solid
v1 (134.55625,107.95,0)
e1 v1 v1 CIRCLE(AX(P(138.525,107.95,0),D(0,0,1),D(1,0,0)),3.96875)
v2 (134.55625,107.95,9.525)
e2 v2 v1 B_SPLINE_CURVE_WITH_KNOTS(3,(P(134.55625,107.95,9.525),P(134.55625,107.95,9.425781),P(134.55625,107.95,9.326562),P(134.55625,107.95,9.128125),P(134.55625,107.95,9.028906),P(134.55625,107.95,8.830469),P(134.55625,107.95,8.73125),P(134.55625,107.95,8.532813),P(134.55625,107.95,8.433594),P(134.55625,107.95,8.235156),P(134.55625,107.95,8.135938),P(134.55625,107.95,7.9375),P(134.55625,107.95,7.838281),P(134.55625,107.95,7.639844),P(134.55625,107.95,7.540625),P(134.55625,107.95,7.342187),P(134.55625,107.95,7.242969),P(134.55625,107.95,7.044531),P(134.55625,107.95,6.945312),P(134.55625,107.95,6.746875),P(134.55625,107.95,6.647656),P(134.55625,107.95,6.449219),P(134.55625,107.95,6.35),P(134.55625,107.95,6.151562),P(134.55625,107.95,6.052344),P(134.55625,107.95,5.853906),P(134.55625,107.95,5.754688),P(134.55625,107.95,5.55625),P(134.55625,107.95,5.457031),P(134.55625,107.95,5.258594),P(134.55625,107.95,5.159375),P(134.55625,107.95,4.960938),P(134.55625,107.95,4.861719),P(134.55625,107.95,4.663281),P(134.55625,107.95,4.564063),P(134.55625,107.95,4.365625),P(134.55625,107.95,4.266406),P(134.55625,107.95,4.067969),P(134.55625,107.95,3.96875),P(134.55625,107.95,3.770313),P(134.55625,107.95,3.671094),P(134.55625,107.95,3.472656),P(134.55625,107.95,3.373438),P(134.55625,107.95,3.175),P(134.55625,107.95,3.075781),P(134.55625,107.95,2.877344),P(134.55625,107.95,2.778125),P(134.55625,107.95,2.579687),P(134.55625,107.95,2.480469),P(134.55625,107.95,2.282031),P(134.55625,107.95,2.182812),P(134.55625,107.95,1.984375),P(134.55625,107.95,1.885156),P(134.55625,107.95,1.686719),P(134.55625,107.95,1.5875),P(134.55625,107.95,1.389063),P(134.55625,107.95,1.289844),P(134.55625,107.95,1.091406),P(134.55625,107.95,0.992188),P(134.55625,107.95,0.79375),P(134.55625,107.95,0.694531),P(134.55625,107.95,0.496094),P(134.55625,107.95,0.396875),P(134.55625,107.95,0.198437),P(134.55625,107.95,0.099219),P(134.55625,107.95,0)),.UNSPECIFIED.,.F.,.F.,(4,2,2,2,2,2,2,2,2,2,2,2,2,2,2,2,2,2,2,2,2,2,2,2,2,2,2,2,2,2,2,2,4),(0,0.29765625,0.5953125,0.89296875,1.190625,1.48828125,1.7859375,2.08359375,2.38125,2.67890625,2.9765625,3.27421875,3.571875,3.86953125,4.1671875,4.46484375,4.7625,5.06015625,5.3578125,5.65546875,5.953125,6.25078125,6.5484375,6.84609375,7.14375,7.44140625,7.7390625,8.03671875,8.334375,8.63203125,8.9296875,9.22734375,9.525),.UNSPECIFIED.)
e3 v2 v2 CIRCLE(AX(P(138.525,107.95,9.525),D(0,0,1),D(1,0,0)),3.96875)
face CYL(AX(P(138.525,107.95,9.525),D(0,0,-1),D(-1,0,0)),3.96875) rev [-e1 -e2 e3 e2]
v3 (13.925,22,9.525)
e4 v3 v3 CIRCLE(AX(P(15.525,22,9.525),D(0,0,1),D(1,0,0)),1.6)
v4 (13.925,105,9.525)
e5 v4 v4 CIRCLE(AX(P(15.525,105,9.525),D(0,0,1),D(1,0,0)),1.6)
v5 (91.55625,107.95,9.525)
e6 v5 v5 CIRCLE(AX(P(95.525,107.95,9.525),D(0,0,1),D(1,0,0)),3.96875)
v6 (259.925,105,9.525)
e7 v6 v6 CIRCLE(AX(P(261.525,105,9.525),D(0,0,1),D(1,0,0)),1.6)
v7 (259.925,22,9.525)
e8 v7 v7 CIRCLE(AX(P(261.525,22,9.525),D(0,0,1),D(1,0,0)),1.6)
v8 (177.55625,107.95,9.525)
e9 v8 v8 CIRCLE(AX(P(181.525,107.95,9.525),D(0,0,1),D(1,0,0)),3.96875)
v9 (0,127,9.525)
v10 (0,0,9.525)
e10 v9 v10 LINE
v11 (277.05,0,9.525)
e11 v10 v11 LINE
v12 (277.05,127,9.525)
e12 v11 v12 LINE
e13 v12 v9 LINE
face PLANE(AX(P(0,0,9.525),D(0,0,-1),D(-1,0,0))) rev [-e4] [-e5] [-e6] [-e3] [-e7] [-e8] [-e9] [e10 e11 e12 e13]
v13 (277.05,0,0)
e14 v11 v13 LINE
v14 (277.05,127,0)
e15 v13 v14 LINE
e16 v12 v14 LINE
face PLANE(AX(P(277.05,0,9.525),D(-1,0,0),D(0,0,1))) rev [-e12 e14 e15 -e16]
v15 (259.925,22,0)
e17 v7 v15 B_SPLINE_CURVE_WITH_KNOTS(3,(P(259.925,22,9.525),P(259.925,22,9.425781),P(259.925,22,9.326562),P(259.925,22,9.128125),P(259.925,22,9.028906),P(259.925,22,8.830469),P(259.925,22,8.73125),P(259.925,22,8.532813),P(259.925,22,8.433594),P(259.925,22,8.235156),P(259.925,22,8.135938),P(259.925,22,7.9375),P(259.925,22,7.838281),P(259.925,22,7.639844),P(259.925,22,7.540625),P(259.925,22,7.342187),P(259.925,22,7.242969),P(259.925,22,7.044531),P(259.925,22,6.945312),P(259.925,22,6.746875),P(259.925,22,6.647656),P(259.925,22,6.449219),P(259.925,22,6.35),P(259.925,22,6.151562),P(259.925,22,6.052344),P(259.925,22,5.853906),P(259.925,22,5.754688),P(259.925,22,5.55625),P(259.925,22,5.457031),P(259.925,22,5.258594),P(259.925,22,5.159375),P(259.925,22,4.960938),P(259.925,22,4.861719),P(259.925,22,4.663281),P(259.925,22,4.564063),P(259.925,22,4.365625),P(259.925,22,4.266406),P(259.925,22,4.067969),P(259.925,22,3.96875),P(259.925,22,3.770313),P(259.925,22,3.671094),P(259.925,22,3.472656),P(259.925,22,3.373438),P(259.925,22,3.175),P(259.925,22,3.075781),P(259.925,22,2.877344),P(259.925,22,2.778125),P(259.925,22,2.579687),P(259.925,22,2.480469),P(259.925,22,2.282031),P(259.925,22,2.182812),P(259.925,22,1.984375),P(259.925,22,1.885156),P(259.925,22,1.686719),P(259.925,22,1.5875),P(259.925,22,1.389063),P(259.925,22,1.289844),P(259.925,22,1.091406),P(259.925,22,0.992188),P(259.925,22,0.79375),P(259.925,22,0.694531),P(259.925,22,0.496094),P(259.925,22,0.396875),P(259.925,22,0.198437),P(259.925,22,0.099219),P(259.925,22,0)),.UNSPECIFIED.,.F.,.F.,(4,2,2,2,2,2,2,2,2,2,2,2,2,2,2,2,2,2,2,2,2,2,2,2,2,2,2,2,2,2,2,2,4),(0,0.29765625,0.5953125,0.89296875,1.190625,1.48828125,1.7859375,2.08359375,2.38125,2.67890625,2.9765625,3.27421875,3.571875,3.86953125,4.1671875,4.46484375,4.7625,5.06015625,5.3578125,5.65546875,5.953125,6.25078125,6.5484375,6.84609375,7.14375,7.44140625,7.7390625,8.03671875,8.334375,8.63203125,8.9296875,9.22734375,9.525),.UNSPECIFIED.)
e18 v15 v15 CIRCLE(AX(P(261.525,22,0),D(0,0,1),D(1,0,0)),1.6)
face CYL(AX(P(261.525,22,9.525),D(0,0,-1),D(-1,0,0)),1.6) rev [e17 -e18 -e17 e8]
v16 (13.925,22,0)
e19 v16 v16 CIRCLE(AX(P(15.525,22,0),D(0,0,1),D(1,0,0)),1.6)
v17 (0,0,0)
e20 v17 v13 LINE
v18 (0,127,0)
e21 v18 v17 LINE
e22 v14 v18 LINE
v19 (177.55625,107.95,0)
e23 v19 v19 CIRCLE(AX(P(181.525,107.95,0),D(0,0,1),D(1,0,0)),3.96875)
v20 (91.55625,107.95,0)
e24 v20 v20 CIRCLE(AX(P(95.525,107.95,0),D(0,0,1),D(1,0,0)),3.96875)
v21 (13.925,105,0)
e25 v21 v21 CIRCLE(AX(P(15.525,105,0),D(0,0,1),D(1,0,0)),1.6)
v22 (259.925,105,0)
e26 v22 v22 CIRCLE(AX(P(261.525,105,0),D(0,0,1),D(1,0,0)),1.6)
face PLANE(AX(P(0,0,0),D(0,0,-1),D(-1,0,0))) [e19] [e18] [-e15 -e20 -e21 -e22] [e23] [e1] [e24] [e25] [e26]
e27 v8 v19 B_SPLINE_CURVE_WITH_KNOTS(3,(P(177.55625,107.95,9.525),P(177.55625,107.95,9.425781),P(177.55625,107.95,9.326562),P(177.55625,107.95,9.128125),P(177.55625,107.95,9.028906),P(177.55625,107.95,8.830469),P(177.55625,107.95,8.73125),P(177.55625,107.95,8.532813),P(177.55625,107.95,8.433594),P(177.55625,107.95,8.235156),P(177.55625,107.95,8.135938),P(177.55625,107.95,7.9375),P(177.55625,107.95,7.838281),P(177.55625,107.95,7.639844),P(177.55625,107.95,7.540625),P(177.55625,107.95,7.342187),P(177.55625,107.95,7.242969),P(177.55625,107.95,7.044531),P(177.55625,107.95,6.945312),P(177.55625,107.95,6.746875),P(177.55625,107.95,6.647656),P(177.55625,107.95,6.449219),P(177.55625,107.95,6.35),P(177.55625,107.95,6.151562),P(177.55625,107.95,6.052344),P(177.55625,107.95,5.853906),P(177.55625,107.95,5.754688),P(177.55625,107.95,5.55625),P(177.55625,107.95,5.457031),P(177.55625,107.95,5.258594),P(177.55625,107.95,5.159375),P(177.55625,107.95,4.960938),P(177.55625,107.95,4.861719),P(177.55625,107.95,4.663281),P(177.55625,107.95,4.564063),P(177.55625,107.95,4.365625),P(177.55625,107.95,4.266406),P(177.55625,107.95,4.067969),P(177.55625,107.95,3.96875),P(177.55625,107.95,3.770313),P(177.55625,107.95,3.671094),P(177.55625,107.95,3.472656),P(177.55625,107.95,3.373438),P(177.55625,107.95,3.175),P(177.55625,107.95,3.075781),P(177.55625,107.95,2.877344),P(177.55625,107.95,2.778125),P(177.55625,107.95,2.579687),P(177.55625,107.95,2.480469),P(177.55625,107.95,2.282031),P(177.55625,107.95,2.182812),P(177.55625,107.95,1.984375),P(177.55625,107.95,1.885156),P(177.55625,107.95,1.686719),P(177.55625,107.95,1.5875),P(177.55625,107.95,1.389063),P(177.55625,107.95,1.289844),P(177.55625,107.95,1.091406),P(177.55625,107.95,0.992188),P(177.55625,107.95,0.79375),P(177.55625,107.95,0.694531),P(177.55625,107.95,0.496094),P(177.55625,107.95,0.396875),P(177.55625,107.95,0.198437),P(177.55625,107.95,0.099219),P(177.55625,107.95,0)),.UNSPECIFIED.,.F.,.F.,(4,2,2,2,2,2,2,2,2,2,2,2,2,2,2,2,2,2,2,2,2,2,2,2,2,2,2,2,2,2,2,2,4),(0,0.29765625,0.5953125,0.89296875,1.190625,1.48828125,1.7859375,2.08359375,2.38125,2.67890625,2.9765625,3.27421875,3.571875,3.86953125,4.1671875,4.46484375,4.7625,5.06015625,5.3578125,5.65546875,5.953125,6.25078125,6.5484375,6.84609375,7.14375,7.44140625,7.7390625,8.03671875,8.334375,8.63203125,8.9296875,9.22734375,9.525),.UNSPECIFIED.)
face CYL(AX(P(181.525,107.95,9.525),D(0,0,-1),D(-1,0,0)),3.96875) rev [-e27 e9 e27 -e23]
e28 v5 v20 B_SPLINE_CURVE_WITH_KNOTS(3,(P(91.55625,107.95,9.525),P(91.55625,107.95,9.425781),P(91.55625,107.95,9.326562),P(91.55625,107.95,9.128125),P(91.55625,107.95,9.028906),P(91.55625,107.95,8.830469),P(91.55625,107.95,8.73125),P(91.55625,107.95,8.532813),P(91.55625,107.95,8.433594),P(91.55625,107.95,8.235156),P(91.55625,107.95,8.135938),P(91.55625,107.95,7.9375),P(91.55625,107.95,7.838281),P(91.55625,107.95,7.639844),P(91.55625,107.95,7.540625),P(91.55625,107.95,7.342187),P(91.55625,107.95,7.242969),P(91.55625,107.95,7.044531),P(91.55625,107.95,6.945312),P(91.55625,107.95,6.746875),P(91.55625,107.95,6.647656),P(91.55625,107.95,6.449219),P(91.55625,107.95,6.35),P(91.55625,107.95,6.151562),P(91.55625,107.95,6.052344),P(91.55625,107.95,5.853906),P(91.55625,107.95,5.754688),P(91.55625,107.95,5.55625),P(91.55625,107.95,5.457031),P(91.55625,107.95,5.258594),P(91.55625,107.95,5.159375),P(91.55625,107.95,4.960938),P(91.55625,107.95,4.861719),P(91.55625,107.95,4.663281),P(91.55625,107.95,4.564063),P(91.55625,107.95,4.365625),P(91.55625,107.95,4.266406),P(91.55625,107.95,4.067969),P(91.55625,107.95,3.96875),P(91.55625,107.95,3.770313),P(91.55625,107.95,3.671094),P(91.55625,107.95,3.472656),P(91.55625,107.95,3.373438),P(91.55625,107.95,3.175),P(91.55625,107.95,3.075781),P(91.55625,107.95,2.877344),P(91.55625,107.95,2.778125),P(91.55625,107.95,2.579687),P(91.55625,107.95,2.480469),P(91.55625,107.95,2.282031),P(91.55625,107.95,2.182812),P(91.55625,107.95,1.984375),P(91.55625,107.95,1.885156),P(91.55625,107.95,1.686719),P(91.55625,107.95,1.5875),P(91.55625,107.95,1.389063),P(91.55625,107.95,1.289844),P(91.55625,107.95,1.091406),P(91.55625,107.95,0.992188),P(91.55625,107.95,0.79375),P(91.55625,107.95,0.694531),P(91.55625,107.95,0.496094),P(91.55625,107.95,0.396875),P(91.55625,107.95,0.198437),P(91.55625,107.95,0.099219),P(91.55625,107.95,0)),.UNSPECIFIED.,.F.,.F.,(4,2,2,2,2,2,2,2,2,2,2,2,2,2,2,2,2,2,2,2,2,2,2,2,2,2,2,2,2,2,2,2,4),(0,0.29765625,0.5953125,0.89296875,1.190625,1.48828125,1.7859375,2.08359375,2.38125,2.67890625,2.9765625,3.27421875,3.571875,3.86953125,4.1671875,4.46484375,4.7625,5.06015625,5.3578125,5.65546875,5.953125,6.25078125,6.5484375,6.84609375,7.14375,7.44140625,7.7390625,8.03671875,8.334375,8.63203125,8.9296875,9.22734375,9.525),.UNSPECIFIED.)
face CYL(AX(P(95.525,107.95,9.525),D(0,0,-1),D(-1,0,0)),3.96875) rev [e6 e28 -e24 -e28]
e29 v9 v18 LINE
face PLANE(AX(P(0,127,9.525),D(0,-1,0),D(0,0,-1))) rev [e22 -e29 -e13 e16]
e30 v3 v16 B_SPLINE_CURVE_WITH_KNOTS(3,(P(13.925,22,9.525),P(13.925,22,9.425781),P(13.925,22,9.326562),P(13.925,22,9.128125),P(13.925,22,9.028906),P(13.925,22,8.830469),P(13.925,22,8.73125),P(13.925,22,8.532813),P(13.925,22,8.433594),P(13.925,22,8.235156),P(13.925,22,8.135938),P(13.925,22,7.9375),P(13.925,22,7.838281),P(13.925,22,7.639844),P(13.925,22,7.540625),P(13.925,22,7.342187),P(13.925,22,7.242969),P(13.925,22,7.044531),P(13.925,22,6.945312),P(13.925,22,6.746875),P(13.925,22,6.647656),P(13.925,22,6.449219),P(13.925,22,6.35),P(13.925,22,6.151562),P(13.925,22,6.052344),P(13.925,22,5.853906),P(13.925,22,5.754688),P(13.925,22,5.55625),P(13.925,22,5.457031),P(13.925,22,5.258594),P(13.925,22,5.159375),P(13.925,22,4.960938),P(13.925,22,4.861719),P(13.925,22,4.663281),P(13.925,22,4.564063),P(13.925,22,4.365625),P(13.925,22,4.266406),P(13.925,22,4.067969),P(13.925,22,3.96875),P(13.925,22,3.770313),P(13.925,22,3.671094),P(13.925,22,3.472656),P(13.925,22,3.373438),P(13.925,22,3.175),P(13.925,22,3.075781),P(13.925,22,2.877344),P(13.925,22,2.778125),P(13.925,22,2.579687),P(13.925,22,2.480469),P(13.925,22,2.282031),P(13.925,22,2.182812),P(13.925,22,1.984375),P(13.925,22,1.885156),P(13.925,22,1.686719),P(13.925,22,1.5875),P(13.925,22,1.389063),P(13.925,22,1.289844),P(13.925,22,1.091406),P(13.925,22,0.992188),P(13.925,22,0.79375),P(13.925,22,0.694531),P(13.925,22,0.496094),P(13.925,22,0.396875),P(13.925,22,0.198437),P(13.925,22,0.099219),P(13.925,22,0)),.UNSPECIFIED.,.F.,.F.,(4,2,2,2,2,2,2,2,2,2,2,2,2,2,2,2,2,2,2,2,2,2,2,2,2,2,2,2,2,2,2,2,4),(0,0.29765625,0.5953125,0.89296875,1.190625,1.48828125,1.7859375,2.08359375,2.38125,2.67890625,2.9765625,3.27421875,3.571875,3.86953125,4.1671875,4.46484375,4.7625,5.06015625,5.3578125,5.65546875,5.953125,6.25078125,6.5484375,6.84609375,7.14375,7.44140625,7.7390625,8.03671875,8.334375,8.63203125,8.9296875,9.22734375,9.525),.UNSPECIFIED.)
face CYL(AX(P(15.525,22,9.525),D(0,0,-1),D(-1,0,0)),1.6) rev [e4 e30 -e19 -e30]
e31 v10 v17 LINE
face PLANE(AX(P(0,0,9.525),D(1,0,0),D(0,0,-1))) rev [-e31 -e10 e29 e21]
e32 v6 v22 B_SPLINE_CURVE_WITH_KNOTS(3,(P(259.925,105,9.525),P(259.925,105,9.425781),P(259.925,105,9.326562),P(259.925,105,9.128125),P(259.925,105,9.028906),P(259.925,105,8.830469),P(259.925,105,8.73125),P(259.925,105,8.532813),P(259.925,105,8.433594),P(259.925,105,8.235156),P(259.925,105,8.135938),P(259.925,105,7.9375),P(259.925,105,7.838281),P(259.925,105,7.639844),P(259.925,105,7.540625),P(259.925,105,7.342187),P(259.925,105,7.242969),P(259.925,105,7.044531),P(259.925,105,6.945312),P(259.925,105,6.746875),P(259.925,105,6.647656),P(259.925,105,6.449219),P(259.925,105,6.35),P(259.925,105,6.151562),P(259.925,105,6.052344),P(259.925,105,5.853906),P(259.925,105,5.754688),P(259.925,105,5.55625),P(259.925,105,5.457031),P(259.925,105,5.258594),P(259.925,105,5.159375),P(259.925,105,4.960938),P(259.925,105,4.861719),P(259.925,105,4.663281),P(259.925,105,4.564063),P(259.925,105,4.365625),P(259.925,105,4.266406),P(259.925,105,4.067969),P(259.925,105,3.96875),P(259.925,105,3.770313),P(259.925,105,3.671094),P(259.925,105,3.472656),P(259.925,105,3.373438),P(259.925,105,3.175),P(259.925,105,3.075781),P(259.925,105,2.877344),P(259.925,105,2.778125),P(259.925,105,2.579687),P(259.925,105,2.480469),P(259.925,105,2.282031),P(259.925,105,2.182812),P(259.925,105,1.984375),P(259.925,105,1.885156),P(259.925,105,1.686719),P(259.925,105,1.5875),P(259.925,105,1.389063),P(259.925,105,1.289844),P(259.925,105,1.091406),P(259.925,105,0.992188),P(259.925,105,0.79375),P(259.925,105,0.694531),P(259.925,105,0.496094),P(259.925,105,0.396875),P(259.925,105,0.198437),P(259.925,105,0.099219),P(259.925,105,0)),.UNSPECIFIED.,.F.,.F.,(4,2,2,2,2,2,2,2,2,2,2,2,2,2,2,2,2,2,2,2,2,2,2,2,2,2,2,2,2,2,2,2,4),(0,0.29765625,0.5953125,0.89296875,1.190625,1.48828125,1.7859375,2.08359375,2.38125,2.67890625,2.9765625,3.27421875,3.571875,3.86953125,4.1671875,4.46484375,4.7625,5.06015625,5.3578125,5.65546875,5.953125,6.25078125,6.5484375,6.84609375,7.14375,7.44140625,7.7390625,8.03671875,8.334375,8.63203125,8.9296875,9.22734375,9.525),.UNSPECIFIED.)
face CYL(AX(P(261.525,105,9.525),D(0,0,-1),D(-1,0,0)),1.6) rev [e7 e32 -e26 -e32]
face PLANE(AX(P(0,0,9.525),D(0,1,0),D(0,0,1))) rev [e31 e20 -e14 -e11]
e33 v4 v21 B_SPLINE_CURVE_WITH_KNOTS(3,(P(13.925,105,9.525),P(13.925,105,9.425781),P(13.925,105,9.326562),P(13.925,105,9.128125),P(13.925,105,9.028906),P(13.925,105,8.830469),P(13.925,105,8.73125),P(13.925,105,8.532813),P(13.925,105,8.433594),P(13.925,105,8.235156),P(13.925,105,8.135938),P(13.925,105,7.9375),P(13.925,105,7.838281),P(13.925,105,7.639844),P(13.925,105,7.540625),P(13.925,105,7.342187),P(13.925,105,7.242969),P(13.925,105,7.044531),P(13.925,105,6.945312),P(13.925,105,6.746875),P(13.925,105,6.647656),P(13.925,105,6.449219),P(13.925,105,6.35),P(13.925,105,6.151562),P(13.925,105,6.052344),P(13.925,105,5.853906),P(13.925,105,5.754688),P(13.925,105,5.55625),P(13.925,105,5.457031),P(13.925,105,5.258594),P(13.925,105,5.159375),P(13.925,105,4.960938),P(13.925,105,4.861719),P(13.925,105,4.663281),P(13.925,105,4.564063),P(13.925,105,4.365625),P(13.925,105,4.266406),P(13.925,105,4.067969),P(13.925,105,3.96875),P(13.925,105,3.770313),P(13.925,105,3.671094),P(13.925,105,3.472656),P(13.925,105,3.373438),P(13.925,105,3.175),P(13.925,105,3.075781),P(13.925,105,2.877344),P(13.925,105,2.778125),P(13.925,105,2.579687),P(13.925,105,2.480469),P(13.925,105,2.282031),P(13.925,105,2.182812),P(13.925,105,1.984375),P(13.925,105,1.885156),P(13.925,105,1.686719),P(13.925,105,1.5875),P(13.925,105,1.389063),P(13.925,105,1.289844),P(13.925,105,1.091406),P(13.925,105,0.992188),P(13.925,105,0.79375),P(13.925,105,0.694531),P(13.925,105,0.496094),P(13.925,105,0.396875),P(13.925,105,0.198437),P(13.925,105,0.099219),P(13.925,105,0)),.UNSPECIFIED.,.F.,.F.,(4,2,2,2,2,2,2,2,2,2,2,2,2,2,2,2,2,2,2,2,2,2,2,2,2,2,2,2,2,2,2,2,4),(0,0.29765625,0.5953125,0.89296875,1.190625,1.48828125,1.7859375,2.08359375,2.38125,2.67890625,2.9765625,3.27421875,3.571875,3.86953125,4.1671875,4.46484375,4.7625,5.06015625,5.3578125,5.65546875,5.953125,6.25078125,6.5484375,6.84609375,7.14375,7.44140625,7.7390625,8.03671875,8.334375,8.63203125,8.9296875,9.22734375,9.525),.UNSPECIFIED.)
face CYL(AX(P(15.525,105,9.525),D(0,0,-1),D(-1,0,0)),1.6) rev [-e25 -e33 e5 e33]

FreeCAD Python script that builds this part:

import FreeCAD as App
import Part
import Sketcher
Q = App.Units.Quantity

doc = App.newDocument("Part")
body = doc.addObject("PartDesign::Body", "Body")

# Sketch on XY plane
sketch1 = body.newObject("Sketcher::SketchObject", "Sketch")
sketch1.AttachmentSupport = (doc.getObject("XY_Plane"), [""])
sketch1.MapMode = "FlatFace"
sketch1.addGeometry([
    Part.LineSegment(App.Vector(0, 127, 0), App.Vector(0, 0, 0)),  # 0
    Part.LineSegment(App.Vector(0, 0, 0), App.Vector(277.1, 0, 0)),  # 1
    Part.LineSegment(App.Vector(277.1, 0, 0), App.Vector(277.1, 127, 0)),  # 2
    Part.LineSegment(App.Vector(277.1, 127, 0), App.Vector(0, 127, 0)),  # 3
    Part.Circle(App.Vector(15.5, 22, 0), App.Vector(0, 0, 1), 1.6),  # 4
    Part.Circle(App.Vector(261.5, 22, 0), App.Vector(0, 0, 1), 1.6),  # 5
    Part.Circle(App.Vector(15.5, 105, 0), App.Vector(0, 0, 1), 1.6),  # 6
    Part.Circle(App.Vector(95.5, 108, 0), App.Vector(0, 0, 1), 4),  # 7
    Part.Circle(App.Vector(138.5, 108, 0), App.Vector(0, 0, 1), 4),  # 8
    Part.Circle(App.Vector(181.5, 108, 0), App.Vector(0, 0, 1), 4),  # 9
    Part.Circle(App.Vector(261.5, 105, 0), App.Vector(0, 0, 1), 1.6),  # 10
], False)
sketch1.addConstraint([
    Sketcher.Constraint("Coincident", 0, 2, 1, 1),
    Sketcher.Constraint("Coincident", 1, 2, 2, 1),
    Sketcher.Constraint("Coincident", 2, 2, 3, 1),
    Sketcher.Constraint("Coincident", 3, 2, 0, 1),
    Sketcher.Constraint("Vertical", 0),
    Sketcher.Constraint("Horizontal", 1),
    Sketcher.Constraint("Vertical", 2),
    Sketcher.Constraint("Horizontal", 3),
    Sketcher.Constraint("Coincident", 0, 2, -1, 1),
    Sketcher.Constraint("Equal", 4, 5),
    Sketcher.Constraint("Equal", 5, 6),
    Sketcher.Constraint("Equal", 7, 8),
    Sketcher.Constraint("Equal", 8, 9),
    Sketcher.Constraint("Equal", 6, 10),
    Sketcher.Constraint("Horizontal", 4, 3, 5, 3),
    Sketcher.Constraint("Horizontal", 7, 3, 8, 3),
    Sketcher.Constraint("Horizontal", 8, 3, 9, 3),
    Sketcher.Constraint("Horizontal", 6, 3, 10, 3),
    Sketcher.Constraint("Vertical", 4, 3, 6, 3),
    Sketcher.Constraint("Vertical", 5, 3, 10, 3),
    Sketcher.Constraint("DistanceY", 0, 2, 0, 1, Q("5 in")),
    Sketcher.Constraint("Diameter", 7, Q("0.3125 in")),
    Sketcher.Constraint("Diameter", 4, 3.2),
    Sketcher.Constraint("DistanceY", -1, 1, 7, 3, Q("4.25 in")),
    Sketcher.Constraint("DistanceX", 1, 1, 1, 2, 277.05),
    Sketcher.Constraint("DistanceX", -1, 1, 4, 3, 15.525),
    Sketcher.Constraint("DistanceY", -1, 1, 4, 3, 22.0),
    Sketcher.Constraint("DistanceX", -1, 1, 5, 3, 261.525),
    Sketcher.Constraint("DistanceY", -1, 1, 6, 3, 105.0),
    Sketcher.Constraint("DistanceX", -1, 1, 7, 3, 95.525),
    Sketcher.Constraint("DistanceX", -1, 1, 8, 3, 138.525),
    Sketcher.Constraint("DistanceX", -1, 1, 9, 3, 181.525),
])
pad1 = body.newObject("PartDesign::Pad", "Pad")
pad1.Profile = sketch1
pad1.Length = Q("0.375 in")

doc.recompute()
